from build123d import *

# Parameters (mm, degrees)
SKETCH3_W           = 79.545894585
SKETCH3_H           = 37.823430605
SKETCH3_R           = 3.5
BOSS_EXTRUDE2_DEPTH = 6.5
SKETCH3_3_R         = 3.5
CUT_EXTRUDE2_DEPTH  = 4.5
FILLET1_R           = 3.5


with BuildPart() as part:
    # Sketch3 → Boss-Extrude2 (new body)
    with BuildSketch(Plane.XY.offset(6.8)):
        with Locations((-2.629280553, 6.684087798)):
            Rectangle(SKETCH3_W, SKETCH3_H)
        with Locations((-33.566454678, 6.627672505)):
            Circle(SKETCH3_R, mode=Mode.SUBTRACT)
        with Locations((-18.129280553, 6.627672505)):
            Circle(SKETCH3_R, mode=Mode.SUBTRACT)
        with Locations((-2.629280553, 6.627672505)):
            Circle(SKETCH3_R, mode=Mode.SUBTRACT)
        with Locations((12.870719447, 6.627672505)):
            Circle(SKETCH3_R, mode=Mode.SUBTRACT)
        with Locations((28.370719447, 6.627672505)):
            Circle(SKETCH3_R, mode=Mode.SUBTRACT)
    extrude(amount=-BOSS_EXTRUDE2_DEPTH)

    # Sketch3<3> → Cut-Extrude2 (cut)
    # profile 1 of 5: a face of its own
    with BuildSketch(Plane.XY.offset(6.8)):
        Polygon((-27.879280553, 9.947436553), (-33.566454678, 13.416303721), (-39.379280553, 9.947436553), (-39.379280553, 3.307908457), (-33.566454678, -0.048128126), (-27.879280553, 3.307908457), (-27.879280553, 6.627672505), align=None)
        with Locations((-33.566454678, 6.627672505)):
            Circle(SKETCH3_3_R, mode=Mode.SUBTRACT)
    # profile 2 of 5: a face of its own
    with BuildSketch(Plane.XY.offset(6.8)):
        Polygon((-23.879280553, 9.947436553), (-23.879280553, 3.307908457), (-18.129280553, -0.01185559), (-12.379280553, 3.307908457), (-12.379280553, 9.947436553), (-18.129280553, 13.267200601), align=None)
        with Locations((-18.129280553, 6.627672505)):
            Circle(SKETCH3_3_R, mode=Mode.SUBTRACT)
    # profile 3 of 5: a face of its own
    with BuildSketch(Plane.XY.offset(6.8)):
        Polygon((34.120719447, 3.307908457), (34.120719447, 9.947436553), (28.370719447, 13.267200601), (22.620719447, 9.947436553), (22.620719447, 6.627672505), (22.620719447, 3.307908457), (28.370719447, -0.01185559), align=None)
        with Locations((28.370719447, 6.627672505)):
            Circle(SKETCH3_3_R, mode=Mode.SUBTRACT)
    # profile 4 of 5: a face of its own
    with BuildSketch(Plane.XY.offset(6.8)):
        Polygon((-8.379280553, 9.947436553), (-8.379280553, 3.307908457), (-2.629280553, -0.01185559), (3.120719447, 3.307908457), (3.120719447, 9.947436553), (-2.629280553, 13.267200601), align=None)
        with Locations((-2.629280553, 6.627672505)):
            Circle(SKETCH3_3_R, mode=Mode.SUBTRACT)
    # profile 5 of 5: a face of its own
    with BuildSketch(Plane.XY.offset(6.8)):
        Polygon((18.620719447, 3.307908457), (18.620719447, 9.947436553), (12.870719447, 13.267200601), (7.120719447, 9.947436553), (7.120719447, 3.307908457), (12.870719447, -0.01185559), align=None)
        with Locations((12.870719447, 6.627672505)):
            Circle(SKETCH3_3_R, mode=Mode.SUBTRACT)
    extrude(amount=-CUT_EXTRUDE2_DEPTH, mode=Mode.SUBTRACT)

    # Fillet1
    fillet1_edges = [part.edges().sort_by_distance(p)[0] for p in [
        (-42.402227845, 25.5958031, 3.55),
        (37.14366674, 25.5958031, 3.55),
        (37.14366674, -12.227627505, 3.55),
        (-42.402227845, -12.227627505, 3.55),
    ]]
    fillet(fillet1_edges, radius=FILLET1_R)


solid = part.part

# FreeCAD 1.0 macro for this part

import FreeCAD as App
import Part
import Sketcher
Q = App.Units.Quantity


def edges_at(feature, points):
    """Names of the edges that pass closest to the given points."""
    edges = feature.Shape.Edges
    near = lambda p: min(range(len(edges)), key=lambda i: edges[i].distToShape(Part.Vertex(*p))[0])
    return sorted({f"Edge{near(p) + 1}" for p in points})


def add_polygon(sketch, points):
    """Adds a closed chain of lines whose ends are joined by coincident constraints."""
    first, n = sketch.GeometryCount, len(points)
    for a, b in zip(points, points[1:] + points[:1]):
        sketch.addGeometry(Part.LineSegment(App.Vector(*a, 0), App.Vector(*b, 0)), False)
    for i in range(n):
        sketch.addConstraint(Sketcher.Constraint("Coincident", first + i, 2, first + (i + 1) % n, 1))

doc = App.newDocument("Part")
params = doc.addObject("Spreadsheet::Sheet", "Params")
for row, (alias, value) in enumerate([
    ("sketch1_diameter", "7 mm"),
    ("pad1_length", "6.5 mm"),
    ("sketch2_diameter", "7 mm"),
    ("pocket1_length", "4.5 mm"),
    ("fillet_radius", "3.5 mm"),
], start=1):
    params.set(f"A{row}", alias)
    params.set(f"B{row}", "=" + value)
    params.setAlias(f"B{row}", alias)

body = doc.addObject("PartDesign::Body", "Body")

# Sketch on XY plane
sketch1 = body.newObject("Sketcher::SketchObject", "Sketch")
sketch1.AttachmentSupport = (doc.getObject("XY_Plane"), [""])
sketch1.MapMode = "FlatFace"
sketch1.AttachmentOffset = App.Placement(App.Vector(0, 0, 6.8), App.Rotation())
add_polygon(sketch1, [(-42.4, 25.6), (-42.4, -12.2), (37.1, -12.2), (37.1, 25.6)])  # lines 0-3
sketch1.addGeometry(Part.Circle(App.Vector(-33.6, 6.6, 0), App.Vector(0, 0, 1), 3.5), False)  # 4
sketch1.addGeometry(Part.Circle(App.Vector(-18.1, 6.6, 0), App.Vector(0, 0, 1), 3.5), False)  # 5
sketch1.addGeometry(Part.Circle(App.Vector(-2.6, 6.6, 0), App.Vector(0, 0, 1), 3.5), False)  # 6
sketch1.addGeometry(Part.Circle(App.Vector(12.9, 6.6, 0), App.Vector(0, 0, 1), 3.5), False)  # 7
sketch1.addGeometry(Part.Circle(App.Vector(28.4, 6.6, 0), App.Vector(0, 0, 1), 3.5), False)  # 8
sketch1.addConstraint(Sketcher.Constraint("Vertical", 0))
sketch1.addConstraint(Sketcher.Constraint("Horizontal", 1))
sketch1.addConstraint(Sketcher.Constraint("Vertical", 2))
sketch1.addConstraint(Sketcher.Constraint("Horizontal", 3))
sketch1.addConstraint(Sketcher.Constraint("Equal", 4, 5))
sketch1.addConstraint(Sketcher.Constraint("Equal", 5, 6))
sketch1.addConstraint(Sketcher.Constraint("Equal", 6, 7))
sketch1.addConstraint(Sketcher.Constraint("Equal", 7, 8))
sketch1.addConstraint(Sketcher.Constraint("Horizontal", 4, 3, 5, 3))
sketch1.addConstraint(Sketcher.Constraint("Horizontal", 5, 3, 6, 3))
sketch1.addConstraint(Sketcher.Constraint("Horizontal", 6, 3, 7, 3))
sketch1.addConstraint(Sketcher.Constraint("Horizontal", 7, 3, 8, 3))
sketch1.addConstraint(Sketcher.Constraint("Diameter", 4, Q("7 mm")))
sketch1.addConstraint(Sketcher.Constraint("DistanceX", 5, 3, 7, 3, Q("31 mm")))
sketch1.addConstraint(Sketcher.Constraint("DistanceX", 6, 3, 8, 3, Q("31 mm")))
sketch1.addConstraint(Sketcher.Constraint("DistanceX", 5, 3, 6, 3, Q("15.5 mm")))
sketch1.addConstraint(Sketcher.Constraint("DistanceY", 0, 2, 0, 1, Q("37.823431 mm")))
sketch1.addConstraint(Sketcher.Constraint("DistanceY", 0, 2, 4, 3, Q("18.8553 mm")))
sketch1.addConstraint(Sketcher.Constraint("DistanceX", 1, 1, 1, 2, Q("79.545895 mm")))
sketch1.addConstraint(Sketcher.Constraint("DistanceX", 5, 3, -1, 1, Q("18.129281 mm")))
sketch1.addConstraint(Sketcher.Constraint("DistanceX", 4, 3, 1, 2, Q("70.710121 mm")))
sketch1.addConstraint(Sketcher.Constraint("DistanceX", 4, 3, -1, 1, Q("33.566455 mm")))
sketch1.addConstraint(Sketcher.Constraint("DistanceY", -1, 1, 4, 3, Q("6.627673 mm")))
sketch1.setExpression("Constraints[16]", "Params.sketch1_diameter")
pad1 = body.newObject("PartDesign::Pad", "Pad")
pad1.Profile = sketch1
pad1.setExpression("Length", "Params.pad1_length")
pad1.Reversed = True

# Sketch on XY plane
sketch2 = body.newObject("Sketcher::SketchObject", "Sketch001")
sketch2.AttachmentSupport = (doc.getObject("XY_Plane"), [""])
sketch2.MapMode = "FlatFace"
sketch2.AttachmentOffset = App.Placement(App.Vector(0, 0, 6.8), App.Rotation())
add_polygon(sketch2, [(-27.9, 9.9), (-33.6, 13.4), (-39.4, 9.9), (-39.4, 3.3), (-33.6, 0), (-27.9, 3.3)])  # lines 0-5
sketch2.addGeometry(Part.Circle(App.Vector(-33.6, 6.6, 0), App.Vector(0, 0, 1), 3.5), False)  # 6
add_polygon(sketch2, [(-23.9, 9.9), (-23.9, 3.3), (-18.1, 0), (-12.4, 3.3), (-12.4, 9.9), (-18.1, 13.3)])  # lines 7-12
sketch2.addGeometry(Part.Circle(App.Vector(-18.1, 6.6, 0), App.Vector(0, 0, 1), 3.5), False)  # 13
add_polygon(sketch2, [(34.1, 3.3), (34.1, 9.9), (28.4, 13.3), (22.6, 9.9), (22.6, 3.3), (28.4, 0)])  # lines 14-19
sketch2.addGeometry(Part.Circle(App.Vector(28.4, 6.6, 0), App.Vector(0, 0, 1), 3.5), False)  # 20
add_polygon(sketch2, [(-8.4, 9.9), (-8.4, 3.3), (-2.6, 0), (3.1, 3.3), (3.1, 9.9), (-2.6, 13.3)])  # lines 21-26
sketch2.addGeometry(Part.Circle(App.Vector(-2.6, 6.6, 0), App.Vector(0, 0, 1), 3.5), False)  # 27
add_polygon(sketch2, [(18.6, 3.3), (18.6, 9.9), (12.9, 13.3), (7.1, 9.9), (7.1, 3.3), (12.9, 0)])  # lines 28-33
sketch2.addGeometry(Part.Circle(App.Vector(12.9, 6.6, 0), App.Vector(0, 0, 1), 3.5), False)  # 34
sketch2.addConstraint(Sketcher.Constraint("Vertical", 2))
sketch2.addConstraint(Sketcher.Constraint("Vertical", 5))
sketch2.addConstraint(Sketcher.Constraint("Vertical", 7))
sketch2.addConstraint(Sketcher.Constraint("Vertical", 10))
sketch2.addConstraint(Sketcher.Constraint("Vertical", 14))
sketch2.addConstraint(Sketcher.Constraint("Vertical", 17))
sketch2.addConstraint(Sketcher.Constraint("Vertical", 21))
sketch2.addConstraint(Sketcher.Constraint("Vertical", 24))
sketch2.addConstraint(Sketcher.Constraint("Vertical", 28))
sketch2.addConstraint(Sketcher.Constraint("Vertical", 31))
sketch2.addConstraint(Sketcher.Constraint("Equal", 6, 13))
sketch2.addConstraint(Sketcher.Constraint("Equal", 13, 20))
sketch2.addConstraint(Sketcher.Constraint("Equal", 20, 27))
sketch2.addConstraint(Sketcher.Constraint("Equal", 27, 34))
sketch2.addConstraint(Sketcher.Constraint("Parallel", 3, 8))
sketch2.addConstraint(Sketcher.Constraint("Parallel", 8, 11))
sketch2.addConstraint(Sketcher.Constraint("Parallel", 9, 12))
sketch2.addConstraint(Sketcher.Constraint("Parallel", 11, 15))
sketch2.addConstraint(Sketcher.Constraint("Parallel", 12, 16))
sketch2.addConstraint(Sketcher.Constraint("Parallel", 15, 18))
sketch2.addConstraint(Sketcher.Constraint("Parallel", 16, 19))
sketch2.addConstraint(Sketcher.Constraint("Parallel", 18, 22))
sketch2.addConstraint(Sketcher.Constraint("Parallel", 19, 23))
sketch2.addConstraint(Sketcher.Constraint("Parallel", 22, 25))
sketch2.addConstraint(Sketcher.Constraint("Parallel", 23, 26))
sketch2.addConstraint(Sketcher.Constraint("Parallel", 25, 29))
sketch2.addConstraint(Sketcher.Constraint("Parallel", 26, 30))
sketch2.addConstraint(Sketcher.Constraint("Parallel", 29, 32))
sketch2.addConstraint(Sketcher.Constraint("Parallel", 30, 33))
sketch2.addConstraint(Sketcher.Constraint("Horizontal", 6, 3, 13, 3))
sketch2.addConstraint(Sketcher.Constraint("Horizontal", 13, 3, 20, 3))
sketch2.addConstraint(Sketcher.Constraint("Horizontal", 20, 3, 27, 3))
sketch2.addConstraint(Sketcher.Constraint("Horizontal", 27, 3, 34, 3))
sketch2.addConstraint(Sketcher.Constraint("Horizontal", 2, 2, 4, 2))
sketch2.addConstraint(Sketcher.Constraint("Horizontal", 1, 2, 5, 2))
sketch2.addConstraint(Sketcher.Constraint("Horizontal", 4, 2, 7, 2))
sketch2.addConstraint(Sketcher.Constraint("Horizontal", 7, 2, 9, 2))
sketch2.addConstraint(Sketcher.Constraint("Horizontal", 5, 2, 10, 2))
sketch2.addConstraint(Sketcher.Constraint("Horizontal", 10, 2, 12, 2))
sketch2.addConstraint(Sketcher.Constraint("Horizontal", 12, 2, 14, 2))
sketch2.addConstraint(Sketcher.Constraint("Horizontal", 11, 2, 15, 2))
sketch2.addConstraint(Sketcher.Constraint("Horizontal", 14, 2, 16, 2))
sketch2.addConstraint(Sketcher.Constraint("Horizontal", 9, 2, 17, 2))
sketch2.addConstraint(Sketcher.Constraint("Horizontal", 8, 2, 18, 2))
sketch2.addConstraint(Sketcher.Constraint("Horizontal", 19, 2, 21, 2))
sketch2.addConstraint(Sketcher.Constraint("Horizontal", 18, 2, 22, 2))
sketch2.addConstraint(Sketcher.Constraint("Horizontal", 21, 2, 23, 2))
sketch2.addConstraint(Sketcher.Constraint("Horizontal", 16, 2, 24, 2))
sketch2.addConstraint(Sketcher.Constraint("Horizontal", 15, 2, 25, 2))
sketch2.addConstraint(Sketcher.Constraint("Horizontal", 26, 2, 28, 2))
sketch2.addConstraint(Sketcher.Constraint("Horizontal", 25, 2, 29, 2))
sketch2.addConstraint(Sketcher.Constraint("Horizontal", 28, 2, 30, 2))
sketch2.addConstraint(Sketcher.Constraint("Horizontal", 23, 2, 31, 2))
sketch2.addConstraint(Sketcher.Constraint("Horizontal", 22, 2, 32, 2))
sketch2.addConstraint(Sketcher.Constraint("Vertical", 6, 3, 0, 2))
sketch2.addConstraint(Sketcher.Constraint("Vertical", 0, 2, 3, 2))
sketch2.addConstraint(Sketcher.Constraint("Vertical", 13, 3, 8, 2))
sketch2.addConstraint(Sketcher.Constraint("Vertical", 8, 2, 11, 2))
sketch2.addConstraint(Sketcher.Constraint("Vertical", 20, 3, 15, 2))
sketch2.addConstraint(Sketcher.Constraint("Vertical", 27, 3, 22, 2))
sketch2.addConstraint(Sketcher.Constraint("Vertical", 34, 3, 29, 2))
sketch2.addConstraint(Sketcher.Constraint("Diameter", 6, Q("7 mm")))
sketch2.addConstraint(Sketcher.Constraint("Angle", 3, Q("-30 deg")))
sketch2.addConstraint(Sketcher.Constraint("DistanceX", 27, 3, 20, 3, Q("31 mm")))
sketch2.addConstraint(Sketcher.Constraint("DistanceX", 13, 3, 34, 3, Q("31 mm")))
sketch2.addConstraint(Sketcher.Constraint("DistanceX", 4, 2, 7, 2, Q("4 mm")))
sketch2.addConstraint(Sketcher.Constraint("DistanceX", 9, 2, 21, 2, Q("4 mm")))
sketch2.addConstraint(Sketcher.Constraint("DistanceX", 24, 2, 30, 2, Q("4 mm")))
sketch2.addConstraint(Sketcher.Constraint("DistanceX", 2, 2, 4, 2, Q("11.5 mm")))
sketch2.addConstraint(Sketcher.Constraint("DistanceY", 2, 2, 2, 1, Q("6.639528 mm")))
sketch2.addConstraint(Sketcher.Constraint("DistanceY", -1, 1, 11, 2, Q("13.267201 mm")))
sketch2.addConstraint(Sketcher.Constraint("DistanceY", 3, 2, 6, 3, Q("6.675801 mm")))
sketch2.addConstraint(Sketcher.Constraint("DistanceX", 13, 3, -1, 1, Q("18.129281 mm")))
sketch2.addConstraint(Sketcher.Constraint("DistanceY", 3, 2, -1, 1, Q("0.048128 mm")))
sketch2.addConstraint(Sketcher.Constraint("DistanceY", 6, 3, 0, 2, Q("6.788631 mm")))
sketch2.setExpression("Constraints[91]", "Params.sketch2_diameter")
pocket1 = body.newObject("PartDesign::Pocket", "Pocket")
pocket1.Profile = sketch2
pocket1.setExpression("Length", "Params.pocket1_length")
doc.recompute()

fillet = body.newObject("PartDesign::Fillet", "Fillet")
fillet.Base = (pocket1, edges_at(pocket1, [
    (-42.402, 25.596, 3.55),
    (37.144, 25.596, 3.55),
    (37.144, -12.228, 3.55),
    (-42.402, -12.228, 3.55),
]))
fillet.setExpression("Radius", "Params.fillet_radius")

doc.recompute()
